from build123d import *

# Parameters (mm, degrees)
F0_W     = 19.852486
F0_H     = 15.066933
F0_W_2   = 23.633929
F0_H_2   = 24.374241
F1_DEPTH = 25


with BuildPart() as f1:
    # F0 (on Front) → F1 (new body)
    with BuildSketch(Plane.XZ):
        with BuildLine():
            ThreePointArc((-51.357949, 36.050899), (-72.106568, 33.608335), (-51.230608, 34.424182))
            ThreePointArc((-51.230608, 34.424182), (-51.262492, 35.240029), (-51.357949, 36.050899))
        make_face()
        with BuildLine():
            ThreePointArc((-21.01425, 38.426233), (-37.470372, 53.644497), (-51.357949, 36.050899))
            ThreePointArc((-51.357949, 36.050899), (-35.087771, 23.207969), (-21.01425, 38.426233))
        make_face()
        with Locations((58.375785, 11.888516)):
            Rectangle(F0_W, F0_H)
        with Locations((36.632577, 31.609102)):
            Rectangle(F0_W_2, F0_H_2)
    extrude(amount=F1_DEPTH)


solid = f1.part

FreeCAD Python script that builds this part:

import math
import FreeCAD as App
import Part
import Sketcher
from FreeCAD import Vector
Q = App.Units.Quantity

doc = App.newDocument("Part")
params = doc.addObject("Spreadsheet::Sheet", "Params")
for row, (alias, value) in enumerate([
    ("pad1_length", "25 mm"),
], start=1):
    params.set(f"A{row}", alias)
    params.set(f"B{row}", "=" + value)
    params.setAlias(f"B{row}", alias)

body = doc.addObject("PartDesign::Body", "Body")
body.AllowCompound = True

# Sketch on XZ plane
sketch1 = body.newObject("Sketcher::SketchObject", "Sketch")
sketch1.AttachmentSupport = (doc.getObject("XZ_Plane"), [""])
sketch1.MapMode = "FlatFace"
sketch1.addGeometry(Part.ArcOfCircle(Part.Circle(Vector(-61.68453, 34.424181, 0), Vector(0, 0, 1), 10.453922), math.radians(8.95208), math.radians(360.000003)), False)
sketch1.addGeometry(Part.ArcOfCircle(Part.Circle(Vector(-61.684559, 34.424179, 0), Vector(0, 0, 1), 10.453951), math.radians(0.000016), math.radians(8.952068)), False)
sketch1.addGeometry(Part.ArcOfCircle(Part.Circle(Vector(-36.279071, 38.426233, 0), Vector(0, 0, 1), 15.264821), math.radians(0.000001), math.radians(188.95208)), False)
sketch1.addGeometry(Part.ArcOfCircle(Part.Circle(Vector(-36.279071, 38.426233, 0), Vector(0, 0, 1), 15.264821), math.radians(-171.047917), math.radians(-0.000002)), False)
sketch1.addGeometry(Part.LineSegment(Vector(48.449542, 19.421982, 0), Vector(48.449542, 4.355049, 0)), False)
sketch1.addGeometry(Part.LineSegment(Vector(48.449542, 4.355049, 0), Vector(68.302028, 4.355049, 0)), False)
sketch1.addGeometry(Part.LineSegment(Vector(68.302028, 4.355049, 0), Vector(68.302028, 19.421982, 0)), False)
sketch1.addGeometry(Part.LineSegment(Vector(68.302028, 19.421982, 0), Vector(48.449542, 19.421982, 0)), False)
sketch1.addGeometry(Part.LineSegment(Vector(24.815613, 43.796222, 0), Vector(24.815613, 19.421982, 0)), False)
sketch1.addGeometry(Part.LineSegment(Vector(24.815613, 19.421982, 0), Vector(48.449542, 19.421982, 0)), False)
sketch1.addGeometry(Part.LineSegment(Vector(48.449542, 19.421982, 0), Vector(48.449542, 43.796222, 0)), False)
sketch1.addGeometry(Part.LineSegment(Vector(48.449542, 43.796222, 0), Vector(24.815613, 43.796222, 0)), False)
sketch1.addConstraint(Sketcher.Constraint("Coincident", 0, 1, 1, 2))
sketch1.addConstraint(Sketcher.Constraint("Coincident", 1, 1, 0, 2))
sketch1.addConstraint(Sketcher.Constraint("Coincident", 2, 1, 3, 2))
sketch1.addConstraint(Sketcher.Constraint("Coincident", 3, 1, 2, 2))
sketch1.addConstraint(Sketcher.Constraint("Coincident", 4, 2, 5, 1))
sketch1.addConstraint(Sketcher.Constraint("Coincident", 5, 2, 6, 1))
sketch1.addConstraint(Sketcher.Constraint("Coincident", 6, 2, 7, 1))
sketch1.addConstraint(Sketcher.Constraint("Coincident", 7, 2, 4, 1))
sketch1.addConstraint(Sketcher.Constraint("Coincident", 8, 2, 9, 1))
sketch1.addConstraint(Sketcher.Constraint("Coincident", 9, 2, 10, 1))
sketch1.addConstraint(Sketcher.Constraint("Coincident", 10, 2, 11, 1))
sketch1.addConstraint(Sketcher.Constraint("Coincident", 11, 2, 8, 1))
sketch1.addConstraint(Sketcher.Constraint("Vertical", 4))
sketch1.addConstraint(Sketcher.Constraint("Horizontal", 5))
sketch1.addConstraint(Sketcher.Constraint("Vertical", 6))
sketch1.addConstraint(Sketcher.Constraint("Horizontal", 7))
sketch1.addConstraint(Sketcher.Constraint("Vertical", 8))
sketch1.addConstraint(Sketcher.Constraint("Horizontal", 9))
sketch1.addConstraint(Sketcher.Constraint("Vertical", 10))
sketch1.addConstraint(Sketcher.Constraint("Horizontal", 11))
sketch1.addConstraint(Sketcher.Constraint("Coincident", 3, 1, 0, 1))
sketch1.addConstraint(Sketcher.Constraint("Coincident", 9, 2, 7, 2))
sketch1.addConstraint(Sketcher.Constraint("Radius", 0, Q("10.453922 mm")))
sketch1.addConstraint(Sketcher.Constraint("Radius", 1, Q("10.453951 mm")))
sketch1.addConstraint(Sketcher.Constraint("Radius", 2, Q("15.264821 mm")))
sketch1.addConstraint(Sketcher.Constraint("Radius", 3, Q("15.264821 mm")))
sketch1.addConstraint(Sketcher.Constraint("DistanceX", 9, 1, 9, 2, Q("23.633929 mm")))
sketch1.addConstraint(Sketcher.Constraint("DistanceY", 8, 2, 8, 1, Q("24.374241 mm")))
sketch1.addConstraint(Sketcher.Constraint("DistanceY", -1, 1, 0, 1, Q("36.050899 mm")))
sketch1.addConstraint(Sketcher.Constraint("DistanceX", 0, 1, 2, 1, Q("30.343699 mm")))
sketch1.addConstraint(Sketcher.Constraint("DistanceX", 2, 3, 5, 2, Q("104.581099 mm")))
sketch1.addConstraint(Sketcher.Constraint("DistanceX", 5, 1, 5, 2, Q("19.852486 mm")))
sketch1.addConstraint(Sketcher.Constraint("DistanceY", 4, 2, 4, 1, Q("15.066933 mm")))
sketch1.addConstraint(Sketcher.Constraint("DistanceX", 0, 3, -1, 1, Q("61.68453 mm")))
sketch1.addConstraint(Sketcher.Constraint("DistanceY", -1, 1, 0, 3, Q("34.424181 mm")))
sketch1.addConstraint(Sketcher.Constraint("DistanceY", -1, 1, 4, 2, Q("4.355049 mm")))
sketch1.addConstraint(Sketcher.Constraint("DistanceY", 1, 1, 2, 3, Q("4.002051 mm")))
sketch1.addConstraint(Sketcher.Constraint("DistanceY", 1, 1, 2, 1, Q("4.002051 mm")))
pad1 = body.newObject("PartDesign::Pad", "Pad")
pad1.Profile = sketch1
pad1.setExpression("Length", "Params.pad1_length")

doc.recompute()
